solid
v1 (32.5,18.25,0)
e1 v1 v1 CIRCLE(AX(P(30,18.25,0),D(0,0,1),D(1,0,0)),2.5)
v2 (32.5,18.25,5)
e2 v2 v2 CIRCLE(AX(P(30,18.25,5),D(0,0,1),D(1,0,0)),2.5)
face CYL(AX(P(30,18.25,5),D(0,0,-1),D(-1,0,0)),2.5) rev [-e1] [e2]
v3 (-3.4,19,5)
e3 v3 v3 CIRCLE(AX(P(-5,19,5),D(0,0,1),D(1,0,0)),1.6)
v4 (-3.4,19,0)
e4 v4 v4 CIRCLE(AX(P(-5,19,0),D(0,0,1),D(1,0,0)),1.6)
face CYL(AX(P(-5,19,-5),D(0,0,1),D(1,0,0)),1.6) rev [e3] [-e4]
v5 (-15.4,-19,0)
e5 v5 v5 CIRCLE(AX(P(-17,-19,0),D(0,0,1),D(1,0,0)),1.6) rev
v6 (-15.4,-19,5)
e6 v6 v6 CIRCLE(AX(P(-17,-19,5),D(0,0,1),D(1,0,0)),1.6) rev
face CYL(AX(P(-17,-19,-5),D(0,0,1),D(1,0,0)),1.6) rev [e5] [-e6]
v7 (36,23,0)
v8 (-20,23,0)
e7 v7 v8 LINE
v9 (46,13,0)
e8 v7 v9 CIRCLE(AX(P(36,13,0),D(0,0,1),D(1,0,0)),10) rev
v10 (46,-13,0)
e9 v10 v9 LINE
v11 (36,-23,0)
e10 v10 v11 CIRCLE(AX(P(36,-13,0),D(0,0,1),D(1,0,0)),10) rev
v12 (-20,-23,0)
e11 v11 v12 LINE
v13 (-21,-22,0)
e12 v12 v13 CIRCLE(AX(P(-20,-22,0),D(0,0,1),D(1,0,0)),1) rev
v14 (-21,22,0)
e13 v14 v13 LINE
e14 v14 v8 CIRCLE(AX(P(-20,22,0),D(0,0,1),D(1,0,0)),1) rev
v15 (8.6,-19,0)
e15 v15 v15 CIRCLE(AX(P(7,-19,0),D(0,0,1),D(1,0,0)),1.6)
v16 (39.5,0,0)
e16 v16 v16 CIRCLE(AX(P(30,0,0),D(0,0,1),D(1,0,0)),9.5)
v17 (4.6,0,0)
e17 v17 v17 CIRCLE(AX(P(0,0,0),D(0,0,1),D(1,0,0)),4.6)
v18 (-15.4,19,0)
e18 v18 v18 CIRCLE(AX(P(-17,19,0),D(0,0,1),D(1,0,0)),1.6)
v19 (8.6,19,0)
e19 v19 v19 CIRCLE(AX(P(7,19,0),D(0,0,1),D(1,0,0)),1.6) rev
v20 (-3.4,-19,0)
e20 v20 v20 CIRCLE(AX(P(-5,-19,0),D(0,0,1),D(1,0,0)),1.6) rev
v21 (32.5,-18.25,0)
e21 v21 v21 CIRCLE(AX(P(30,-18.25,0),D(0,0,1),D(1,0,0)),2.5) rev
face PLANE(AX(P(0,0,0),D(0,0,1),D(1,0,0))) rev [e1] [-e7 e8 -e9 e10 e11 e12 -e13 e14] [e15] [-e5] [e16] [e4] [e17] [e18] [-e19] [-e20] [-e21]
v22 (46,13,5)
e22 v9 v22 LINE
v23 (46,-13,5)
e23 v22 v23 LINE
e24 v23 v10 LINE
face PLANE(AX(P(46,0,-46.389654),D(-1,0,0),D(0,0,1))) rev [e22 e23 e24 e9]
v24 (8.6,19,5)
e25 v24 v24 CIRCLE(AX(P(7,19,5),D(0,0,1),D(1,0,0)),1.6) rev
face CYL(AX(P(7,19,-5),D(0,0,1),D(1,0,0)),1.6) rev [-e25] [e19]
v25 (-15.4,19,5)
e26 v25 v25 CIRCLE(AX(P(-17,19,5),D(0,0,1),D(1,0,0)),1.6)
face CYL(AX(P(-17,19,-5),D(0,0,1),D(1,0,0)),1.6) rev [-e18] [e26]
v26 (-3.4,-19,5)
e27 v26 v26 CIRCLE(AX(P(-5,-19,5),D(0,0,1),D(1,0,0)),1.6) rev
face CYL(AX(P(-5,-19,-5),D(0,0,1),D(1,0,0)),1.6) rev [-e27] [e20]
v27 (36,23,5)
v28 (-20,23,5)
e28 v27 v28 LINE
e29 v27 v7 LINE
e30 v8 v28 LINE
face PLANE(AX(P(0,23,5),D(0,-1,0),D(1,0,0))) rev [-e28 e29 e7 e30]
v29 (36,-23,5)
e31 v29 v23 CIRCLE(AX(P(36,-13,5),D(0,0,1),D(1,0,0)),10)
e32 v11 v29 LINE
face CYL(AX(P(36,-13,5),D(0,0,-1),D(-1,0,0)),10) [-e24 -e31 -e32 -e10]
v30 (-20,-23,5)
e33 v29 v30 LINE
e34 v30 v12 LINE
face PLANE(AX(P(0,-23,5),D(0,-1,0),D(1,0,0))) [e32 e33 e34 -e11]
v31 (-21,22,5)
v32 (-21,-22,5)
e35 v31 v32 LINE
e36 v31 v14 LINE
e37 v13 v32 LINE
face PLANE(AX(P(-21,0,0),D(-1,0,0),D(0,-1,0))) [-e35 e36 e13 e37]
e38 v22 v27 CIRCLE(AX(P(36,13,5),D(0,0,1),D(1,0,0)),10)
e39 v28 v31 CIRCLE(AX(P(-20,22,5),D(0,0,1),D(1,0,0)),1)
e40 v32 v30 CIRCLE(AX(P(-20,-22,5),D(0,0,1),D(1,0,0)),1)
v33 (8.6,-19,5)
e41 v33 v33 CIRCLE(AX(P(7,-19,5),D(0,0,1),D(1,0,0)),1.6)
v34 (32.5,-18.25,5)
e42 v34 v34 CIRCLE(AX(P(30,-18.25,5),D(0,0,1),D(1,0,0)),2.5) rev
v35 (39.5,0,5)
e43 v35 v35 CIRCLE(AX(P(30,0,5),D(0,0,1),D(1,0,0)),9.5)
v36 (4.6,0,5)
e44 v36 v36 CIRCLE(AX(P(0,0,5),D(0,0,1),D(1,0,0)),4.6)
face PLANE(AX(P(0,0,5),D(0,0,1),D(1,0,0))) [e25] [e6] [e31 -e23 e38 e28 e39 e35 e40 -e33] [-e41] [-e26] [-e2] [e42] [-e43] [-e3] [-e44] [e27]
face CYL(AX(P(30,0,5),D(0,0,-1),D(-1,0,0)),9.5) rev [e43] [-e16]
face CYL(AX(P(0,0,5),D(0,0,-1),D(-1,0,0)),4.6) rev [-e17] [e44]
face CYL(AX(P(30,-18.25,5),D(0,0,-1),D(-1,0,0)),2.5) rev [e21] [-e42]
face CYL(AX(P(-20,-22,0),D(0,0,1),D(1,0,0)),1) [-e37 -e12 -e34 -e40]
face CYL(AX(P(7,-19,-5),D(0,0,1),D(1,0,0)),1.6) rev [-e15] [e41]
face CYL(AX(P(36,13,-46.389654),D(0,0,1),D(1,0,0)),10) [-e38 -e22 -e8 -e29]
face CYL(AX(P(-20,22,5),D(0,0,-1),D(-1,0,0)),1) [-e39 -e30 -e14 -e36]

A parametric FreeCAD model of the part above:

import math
import FreeCAD as App
import Part
import Sketcher

V = App.Vector
Q = App.Units.Quantity


def edges_at(feature, points):
    """Names of the edges that pass closest to the given points."""
    edges = feature.Shape.Edges
    near = lambda p: min(range(len(edges)), key=lambda i: edges[i].distToShape(Part.Vertex(*p))[0])
    return sorted({f"Edge{near(p) + 1}" for p in points})

doc = App.newDocument("Part")
body = doc.addObject("PartDesign::Body", "Body")

# Sketch on XY plane
sketch1 = body.newObject("Sketcher::SketchObject", "Sketch")
sketch1.AttachmentSupport = (doc.getObject("XY_Plane"), [""])
sketch1.MapMode = "FlatFace"
sketch1.addGeometry([
    Part.LineSegment(V(-25, 23, 0), V(-25, -23, 0)),  # 0
    Part.LineSegment(V(-25, -23, 0), V(40, -23, 0)),  # 1
    Part.LineSegment(V(40, -23, 0), V(40, 23, 0)),  # 2
    Part.LineSegment(V(40, 23, 0), V(-25, 23, 0)),  # 3
    Part.Circle(V(0, 0, 0), V(0, 0, 1), 4.6),  # 4
    Part.Circle(V(30, -18.25, 0), V(0, 0, 1), 2.5),  # 5
    Part.ArcOfCircle(Part.Circle(V(30, 0, 0), V(0, 0, 1), 9.5), math.radians(0), math.radians(90)),  # 6
    Part.ArcOfCircle(Part.Circle(V(30, 0, 0), V(0, 0, 1), 9.5), math.radians(90), math.radians(360)),  # 7
    Part.ArcOfCircle(Part.Circle(V(30, 18.25, 0), V(0, 0, 1), 2.5), math.radians(0), math.radians(270)),  # 8
    Part.ArcOfCircle(Part.Circle(V(30, 18.25, 0), V(0, 0, 1), 2.5), math.radians(-90), math.radians(0)),  # 9
], False)
sketch1.addConstraint([
    Sketcher.Constraint("Coincident", 0, 2, 1, 1),
    Sketcher.Constraint("Coincident", 1, 2, 2, 1),
    Sketcher.Constraint("Coincident", 2, 2, 3, 1),
    Sketcher.Constraint("Coincident", 3, 2, 0, 1),
    Sketcher.Constraint("Tangent", 6, 1, 7, 2),
    Sketcher.Constraint("Coincident", 7, 1, 6, 2),
    Sketcher.Constraint("Tangent", 8, 1, 9, 2),
    Sketcher.Constraint("Coincident", 9, 1, 8, 2),
    Sketcher.Constraint("Vertical", 0),
    Sketcher.Constraint("Horizontal", 1),
    Sketcher.Constraint("Vertical", 2),
    Sketcher.Constraint("Horizontal", 3),
    Sketcher.Constraint("Coincident", 4, 3, -1, 1),
    Sketcher.Constraint("Equal", 5, 8),
    Sketcher.Constraint("Symmetric", 5, 3, 8, 3, -1),
    Sketcher.Constraint("PointOnObject", 6, 3, -1),
    Sketcher.Constraint("PointOnObject", 6, 1, -1),
    Sketcher.Constraint("Horizontal", 9, 3, 8, 1),
    Sketcher.Constraint("Vertical", 5, 3, 6, 3),
    Sketcher.Constraint("Vertical", 9, 3, 7, 1),
    Sketcher.Constraint("Vertical", 7, 1, 9, 1),
    Sketcher.Constraint("Diameter", 5, Q("5 mm")),
    Sketcher.Constraint("Diameter", 4, Q("9.2 mm")),
    Sketcher.Constraint("Radius", 6, Q("9.5 mm")),
    Sketcher.Constraint("DistanceX", 1, 1, 1, 2, Q("65 mm")),
    Sketcher.Constraint("DistanceY", 0, 2, 0, 1, Q("46 mm")),
    Sketcher.Constraint("DistanceX", -1, 1, 5, 3, Q("30 mm")),
    Sketcher.Constraint("DistanceX", 0, 2, -1, 1, Q("25 mm")),
    Sketcher.Constraint("DistanceY", 0, 2, -1, 1, Q("23 mm")),
    Sketcher.Constraint("DistanceY", 5, 3, 8, 3, Q("36.5 mm")),
])
pad1 = body.newObject("PartDesign::Pad", "Pad")
pad1.Profile = sketch1
pad1.Length = 5

# Sketch on XY plane
sketch2 = body.newObject("Sketcher::SketchObject", "Sketch001")
sketch2.AttachmentSupport = (doc.getObject("XY_Plane"), [""])
sketch2.MapMode = "FlatFace"
sketch2.AttachmentOffset = App.Placement(V(0, 0, 5), App.Rotation())
sketch2.addGeometry([
    Part.Circle(V(7, 19, 0), V(0, 0, 1), 1.6),  # 0
    Part.Circle(V(-5, -19, 0), V(0, 0, 1), 1.6),  # 1
    Part.Circle(V(-17, 19, 0), V(0, 0, 1), 1.6),  # 2
    Part.Circle(V(-5, 19, 0), V(0, 0, 1), 1.6),  # 3
    Part.Circle(V(7, -19, 0), V(0, 0, 1), 1.6),  # 4
    Part.Circle(V(-17, -19, 0), V(0, 0, 1), 1.6),  # 5
], False)
sketch2.addConstraint([
    Sketcher.Constraint("Equal", 0, 1),
    Sketcher.Constraint("Equal", 1, 2),
    Sketcher.Constraint("Equal", 2, 3),
    Sketcher.Constraint("Equal", 3, 4),
    Sketcher.Constraint("Equal", 4, 5),
    Sketcher.Constraint("Symmetric", 1, 3, 3, 3, -1),
    Sketcher.Constraint("Symmetric", 0, 3, 4, 3, -1),
    Sketcher.Constraint("Symmetric", 2, 3, 5, 3, -1),
    Sketcher.Constraint("Horizontal", 0, 3, 2, 3),
    Sketcher.Constraint("Horizontal", 2, 3, 3, 3),
    Sketcher.Constraint("Diameter", 0, Q("3.2 mm")),
    Sketcher.Constraint("DistanceX", -1, 1, 0, 3, Q("7 mm")),
    Sketcher.Constraint("DistanceY", -1, 1, 0, 3, Q("19 mm")),
    Sketcher.Constraint("DistanceX", 1, 3, -1, 1, Q("5 mm")),
    Sketcher.Constraint("DistanceX", 2, 3, -1, 1, Q("17 mm")),
])
pocket1 = body.newObject("PartDesign::Pocket", "Pocket")
pocket1.Profile = sketch2
pocket1.Length = 10

# Sketch on XY plane
sketch3 = body.newObject("Sketcher::SketchObject", "Sketch002")
sketch3.AttachmentSupport = (doc.getObject("XY_Plane"), [""])
sketch3.MapMode = "FlatFace"
sketch3.AttachmentOffset = App.Placement(V(0, 0, 5), App.Rotation())
sketch3.addGeometry([
    Part.LineSegment(V(-25, 23, 0), V(-25, -23, 0)),
    Part.LineSegment(V(-25, -23, 0), V(-21, -23, 0)),
    Part.LineSegment(V(-21, -23, 0), V(-21, 23, 0)),
    Part.LineSegment(V(-21, 23, 0), V(-25, 23, 0)),
], False)
sketch3.addConstraint([
    Sketcher.Constraint("Coincident", 0, 2, 1, 1),
    Sketcher.Constraint("Coincident", 1, 2, 2, 1),
    Sketcher.Constraint("Coincident", 2, 2, 3, 1),
    Sketcher.Constraint("Coincident", 3, 2, 0, 1),
    Sketcher.Constraint("Vertical", 0),
    Sketcher.Constraint("Horizontal", 1),
    Sketcher.Constraint("Vertical", 2),
    Sketcher.Constraint("Horizontal", 3),
    Sketcher.Constraint("DistanceX", 1, 1, 1, 2, Q("4 mm")),
    Sketcher.Constraint("DistanceY", 0, 2, 0, 1, Q("46 mm")),
    Sketcher.Constraint("DistanceX", 0, 2, -1, 1, Q("25 mm")),
    Sketcher.Constraint("DistanceY", 0, 2, -1, 1, Q("23 mm")),
])
pocket2 = body.newObject("PartDesign::Pocket", "Pocket001")
pocket2.Profile = sketch3
pocket2.Type = "ThroughAll"

# Sketch on XY plane
sketch4 = body.newObject("Sketcher::SketchObject", "Sketch003")
sketch4.AttachmentSupport = (doc.getObject("XY_Plane"), [""])
sketch4.MapMode = "FlatFace"
sketch4.AttachmentOffset = App.Placement(V(0, 0, 5), App.Rotation())
sketch4.addGeometry([
    Part.LineSegment(V(40, 23, 0), V(40, -23, 0)),
    Part.LineSegment(V(40, -23, 0), V(46, -23, 0)),
    Part.LineSegment(V(46, -23, 0), V(46, 23, 0)),
    Part.LineSegment(V(46, 23, 0), V(40, 23, 0)),
], False)
sketch4.addConstraint([
    Sketcher.Constraint("Coincident", 0, 2, 1, 1),
    Sketcher.Constraint("Coincident", 1, 2, 2, 1),
    Sketcher.Constraint("Coincident", 2, 2, 3, 1),
    Sketcher.Constraint("Coincident", 3, 2, 0, 1),
    Sketcher.Constraint("Vertical", 0),
    Sketcher.Constraint("Horizontal", 1),
    Sketcher.Constraint("Vertical", 2),
    Sketcher.Constraint("Horizontal", 3),
    Sketcher.Constraint("DistanceX", 1, 1, 1, 2, Q("6 mm")),
    Sketcher.Constraint("DistanceY", 0, 2, 0, 1, Q("46 mm")),
    Sketcher.Constraint("DistanceX", -1, 1, 0, 2, Q("40 mm")),
    Sketcher.Constraint("DistanceY", 0, 2, -1, 1, Q("23 mm")),
])
pad2 = body.newObject("PartDesign::Pad", "Pad001")
pad2.Profile = sketch4
pad2.Length = 5
pad2.Reversed = True
doc.recompute()

fillet = body.newObject("PartDesign::Fillet", "Fillet")
fillet.Base = (pad2, edges_at(pad2, [(46, -23, 2.5), (46, 23, 2.5)]))
fillet.Radius = 10
doc.recompute()

fillet2 = body.newObject("PartDesign::Fillet", "Fillet001")
fillet2.Base = (fillet, edges_at(fillet, [(-21, 23, 2.5), (-21, -23, 2.5)]))
fillet2.Radius = 1

doc.recompute()
